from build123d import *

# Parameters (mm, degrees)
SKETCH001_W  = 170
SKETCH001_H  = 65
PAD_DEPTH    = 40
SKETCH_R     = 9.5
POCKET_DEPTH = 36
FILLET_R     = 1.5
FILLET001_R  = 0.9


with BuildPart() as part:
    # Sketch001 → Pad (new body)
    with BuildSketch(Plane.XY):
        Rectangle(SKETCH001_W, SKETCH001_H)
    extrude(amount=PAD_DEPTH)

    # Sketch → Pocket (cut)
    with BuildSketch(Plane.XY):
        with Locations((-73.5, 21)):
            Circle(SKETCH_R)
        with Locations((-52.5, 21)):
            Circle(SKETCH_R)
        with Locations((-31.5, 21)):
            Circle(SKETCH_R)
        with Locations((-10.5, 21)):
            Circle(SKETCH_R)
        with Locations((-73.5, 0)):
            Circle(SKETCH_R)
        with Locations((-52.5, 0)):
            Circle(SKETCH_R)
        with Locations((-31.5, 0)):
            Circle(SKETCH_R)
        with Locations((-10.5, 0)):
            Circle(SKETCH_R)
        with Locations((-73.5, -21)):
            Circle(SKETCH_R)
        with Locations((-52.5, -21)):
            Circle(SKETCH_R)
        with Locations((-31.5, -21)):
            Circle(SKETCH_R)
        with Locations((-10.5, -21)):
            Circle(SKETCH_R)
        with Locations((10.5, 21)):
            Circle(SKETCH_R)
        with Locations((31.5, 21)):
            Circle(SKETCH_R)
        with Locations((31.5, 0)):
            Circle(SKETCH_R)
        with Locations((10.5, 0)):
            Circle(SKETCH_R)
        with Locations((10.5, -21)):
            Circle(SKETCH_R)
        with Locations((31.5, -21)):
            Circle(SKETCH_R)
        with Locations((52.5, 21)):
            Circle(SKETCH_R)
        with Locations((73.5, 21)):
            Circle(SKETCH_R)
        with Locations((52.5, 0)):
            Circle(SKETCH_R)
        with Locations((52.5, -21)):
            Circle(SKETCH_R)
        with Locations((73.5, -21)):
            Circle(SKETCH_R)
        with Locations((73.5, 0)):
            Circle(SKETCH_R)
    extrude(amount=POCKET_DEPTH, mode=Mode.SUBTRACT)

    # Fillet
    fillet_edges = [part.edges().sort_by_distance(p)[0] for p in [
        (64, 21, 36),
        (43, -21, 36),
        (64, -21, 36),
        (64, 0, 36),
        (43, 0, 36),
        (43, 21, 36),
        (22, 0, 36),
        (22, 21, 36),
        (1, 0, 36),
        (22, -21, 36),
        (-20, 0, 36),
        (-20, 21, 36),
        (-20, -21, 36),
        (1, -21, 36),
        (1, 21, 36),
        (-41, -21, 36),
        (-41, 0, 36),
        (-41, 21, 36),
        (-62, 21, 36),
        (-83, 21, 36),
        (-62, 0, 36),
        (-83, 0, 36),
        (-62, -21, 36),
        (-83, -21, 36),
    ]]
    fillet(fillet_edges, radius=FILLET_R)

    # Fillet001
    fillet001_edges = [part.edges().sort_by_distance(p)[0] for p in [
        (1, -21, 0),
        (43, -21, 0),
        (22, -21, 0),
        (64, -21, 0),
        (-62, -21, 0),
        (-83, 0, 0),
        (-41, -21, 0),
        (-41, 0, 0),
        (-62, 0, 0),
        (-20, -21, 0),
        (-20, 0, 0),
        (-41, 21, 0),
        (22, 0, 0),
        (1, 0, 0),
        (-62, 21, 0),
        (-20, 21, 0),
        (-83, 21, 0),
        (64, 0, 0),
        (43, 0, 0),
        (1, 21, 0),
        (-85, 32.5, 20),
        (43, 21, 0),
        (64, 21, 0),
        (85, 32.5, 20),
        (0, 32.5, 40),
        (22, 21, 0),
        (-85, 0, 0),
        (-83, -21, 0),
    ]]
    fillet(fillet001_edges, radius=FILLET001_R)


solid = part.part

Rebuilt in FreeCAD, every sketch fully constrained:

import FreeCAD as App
import Part
import Sketcher

V = App.Vector


def edges_at(feature, points):
    """Names of the edges that pass closest to the given points."""
    edges = feature.Shape.Edges
    near = lambda p: min(range(len(edges)), key=lambda i: edges[i].distToShape(Part.Vertex(*p))[0])
    return sorted({f"Edge{near(p) + 1}" for p in points})

doc = App.newDocument("Part")
body = doc.addObject("PartDesign::Body", "Body")

# Sketch on XY plane
sketch1 = body.newObject("Sketcher::SketchObject", "Sketch")
sketch1.AttachmentSupport = (doc.getObject("XY_Plane"), [""])
sketch1.MapMode = "FlatFace"
sketch1.addGeometry(Part.LineSegment(V(-85, 32, 0), V(-85, -32, 0)), False)
sketch1.addGeometry(Part.LineSegment(V(-85, -32, 0), V(85, -32, 0)), False)
sketch1.addGeometry(Part.LineSegment(V(85, -32, 0), V(85, 32, 0)), False)
sketch1.addGeometry(Part.LineSegment(V(85, 32, 0), V(-85, 32, 0)), False)
sketch1.addConstraint(Sketcher.Constraint("Coincident", 0, 2, 1, 1))
sketch1.addConstraint(Sketcher.Constraint("Coincident", 1, 2, 2, 1))
sketch1.addConstraint(Sketcher.Constraint("Coincident", 2, 2, 3, 1))
sketch1.addConstraint(Sketcher.Constraint("Coincident", 3, 2, 0, 1))
sketch1.addConstraint(Sketcher.Constraint("Vertical", 0))
sketch1.addConstraint(Sketcher.Constraint("Horizontal", 1))
sketch1.addConstraint(Sketcher.Constraint("Vertical", 2))
sketch1.addConstraint(Sketcher.Constraint("Horizontal", 3))
sketch1.addConstraint(Sketcher.Constraint("Symmetric", 0, 2, 2, 2, -1, 1))
sketch1.addConstraint(Sketcher.Constraint("DistanceX", 1, 1, 1, 2, 170.0))
sketch1.addConstraint(Sketcher.Constraint("DistanceY", 0, 2, 0, 1, 65.0))
pad1 = body.newObject("PartDesign::Pad", "Pad")
pad1.Profile = sketch1
pad1.Length = 40

# Sketch on XY plane
sketch2 = body.newObject("Sketcher::SketchObject", "Sketch001")
sketch2.AttachmentSupport = (doc.getObject("XY_Plane"), [""])
sketch2.MapMode = "FlatFace"
sketch2.addGeometry(Part.Circle(V(-74, 21, 0), V(0, 0, 1), 10), False)
sketch2.addGeometry(Part.Circle(V(-52, 21, 0), V(0, 0, 1), 10), False)
sketch2.addGeometry(Part.Circle(V(-32, 21, 0), V(0, 0, 1), 10), False)
sketch2.addGeometry(Part.Circle(V(-10, 21, 0), V(0, 0, 1), 10), False)
sketch2.addGeometry(Part.Circle(V(-74, 0, 0), V(0, 0, 1), 10), False)
sketch2.addGeometry(Part.Circle(V(-52, 0, 0), V(0, 0, 1), 10), False)
sketch2.addGeometry(Part.Circle(V(-32, 0, 0), V(0, 0, 1), 10), False)
sketch2.addGeometry(Part.Circle(V(-10, 0, 0), V(0, 0, 1), 10), False)
sketch2.addGeometry(Part.Circle(V(-74, -21, 0), V(0, 0, 1), 10), False)
sketch2.addGeometry(Part.Circle(V(-52, -21, 0), V(0, 0, 1), 10), False)
sketch2.addGeometry(Part.Circle(V(-32, -21, 0), V(0, 0, 1), 10), False)
sketch2.addGeometry(Part.Circle(V(-10, -21, 0), V(0, 0, 1), 10), False)
sketch2.addGeometry(Part.Circle(V(10, 21, 0), V(0, 0, 1), 10), False)
sketch2.addGeometry(Part.Circle(V(32, 21, 0), V(0, 0, 1), 10), False)
sketch2.addGeometry(Part.Circle(V(32, 0, 0), V(0, 0, 1), 10), False)
sketch2.addGeometry(Part.Circle(V(10, 0, 0), V(0, 0, 1), 10), False)
sketch2.addGeometry(Part.Circle(V(10, -21, 0), V(0, 0, 1), 10), False)
sketch2.addGeometry(Part.Circle(V(32, -21, 0), V(0, 0, 1), 10), False)
sketch2.addGeometry(Part.Circle(V(52, 21, 0), V(0, 0, 1), 10), False)
sketch2.addGeometry(Part.Circle(V(74, 21, 0), V(0, 0, 1), 10), False)
sketch2.addGeometry(Part.Circle(V(52, 0, 0), V(0, 0, 1), 10), False)
sketch2.addGeometry(Part.Circle(V(52, -21, 0), V(0, 0, 1), 10), False)
sketch2.addGeometry(Part.Circle(V(74, -21, 0), V(0, 0, 1), 10), False)
sketch2.addGeometry(Part.Circle(V(74, 0, 0), V(0, 0, 1), 10), False)
sketch2.addConstraint(Sketcher.Constraint("Equal", 0, 1))
sketch2.addConstraint(Sketcher.Constraint("Equal", 1, 2))
sketch2.addConstraint(Sketcher.Constraint("Equal", 2, 3))
sketch2.addConstraint(Sketcher.Constraint("Equal", 3, 4))
sketch2.addConstraint(Sketcher.Constraint("Equal", 4, 5))
sketch2.addConstraint(Sketcher.Constraint("Equal", 5, 6))
sketch2.addConstraint(Sketcher.Constraint("Equal", 6, 7))
sketch2.addConstraint(Sketcher.Constraint("Equal", 7, 8))
sketch2.addConstraint(Sketcher.Constraint("Equal", 8, 9))
sketch2.addConstraint(Sketcher.Constraint("Equal", 9, 10))
sketch2.addConstraint(Sketcher.Constraint("Equal", 10, 11))
sketch2.addConstraint(Sketcher.Constraint("Equal", 11, 12))
sketch2.addConstraint(Sketcher.Constraint("Equal", 12, 13))
sketch2.addConstraint(Sketcher.Constraint("Equal", 13, 14))
sketch2.addConstraint(Sketcher.Constraint("Equal", 14, 15))
sketch2.addConstraint(Sketcher.Constraint("Equal", 15, 16))
sketch2.addConstraint(Sketcher.Constraint("Equal", 16, 17))
sketch2.addConstraint(Sketcher.Constraint("Equal", 17, 18))
sketch2.addConstraint(Sketcher.Constraint("Equal", 18, 19))
sketch2.addConstraint(Sketcher.Constraint("Equal", 19, 20))
sketch2.addConstraint(Sketcher.Constraint("Equal", 20, 21))
sketch2.addConstraint(Sketcher.Constraint("Equal", 21, 22))
sketch2.addConstraint(Sketcher.Constraint("Equal", 22, 23))
sketch2.addConstraint(Sketcher.Constraint("Symmetric", 11, 3, 12, 3, -1, 1))
sketch2.addConstraint(Sketcher.Constraint("Symmetric", 10, 3, 13, 3, -1, 1))
sketch2.addConstraint(Sketcher.Constraint("Symmetric", 6, 3, 14, 3, -1, 1))
sketch2.addConstraint(Sketcher.Constraint("Symmetric", 7, 3, 15, 3, -1, 1))
sketch2.addConstraint(Sketcher.Constraint("Symmetric", 3, 3, 16, 3, -1, 1))
sketch2.addConstraint(Sketcher.Constraint("Symmetric", 2, 3, 17, 3, -1, 1))
sketch2.addConstraint(Sketcher.Constraint("Symmetric", 9, 3, 18, 3, -1, 1))
sketch2.addConstraint(Sketcher.Constraint("Symmetric", 8, 3, 19, 3, -1, 1))
sketch2.addConstraint(Sketcher.Constraint("Symmetric", 5, 3, 20, 3, -1, 1))
sketch2.addConstraint(Sketcher.Constraint("Symmetric", 1, 3, 21, 3, -1, 1))
sketch2.addConstraint(Sketcher.Constraint("Symmetric", 0, 3, 22, 3, -1, 1))
sketch2.addConstraint(Sketcher.Constraint("Symmetric", 4, 3, 23, 3, -1, 1))
sketch2.addConstraint(Sketcher.Constraint("Symmetric", 3, 3, 12, 3, -2))
sketch2.addConstraint(Sketcher.Constraint("Symmetric", 2, 3, 13, 3, -2))
sketch2.addConstraint(Sketcher.Constraint("Symmetric", 1, 3, 18, 3, -2))
sketch2.addConstraint(Sketcher.Constraint("Symmetric", 0, 3, 19, 3, -2))
sketch2.addConstraint(Sketcher.Constraint("PointOnObject", 4, 3, -1))
sketch2.addConstraint(Sketcher.Constraint("PointOnObject", 5, 3, -1))
sketch2.addConstraint(Sketcher.Constraint("PointOnObject", 6, 3, -1))
sketch2.addConstraint(Sketcher.Constraint("PointOnObject", 7, 3, -1))
sketch2.addConstraint(Sketcher.Constraint("Horizontal", 0, 3, 1, 3))
sketch2.addConstraint(Sketcher.Constraint("Horizontal", 1, 3, 2, 3))
sketch2.addConstraint(Sketcher.Constraint("Horizontal", 2, 3, 3, 3))
sketch2.addConstraint(Sketcher.Constraint("Vertical", 0, 3, 4, 3))
sketch2.addConstraint(Sketcher.Constraint("Vertical", 1, 3, 5, 3))
sketch2.addConstraint(Sketcher.Constraint("Vertical", 2, 3, 6, 3))
sketch2.addConstraint(Sketcher.Constraint("Vertical", 3, 3, 7, 3))
sketch2.addConstraint(Sketcher.Constraint("Diameter", 0, 19.0))
sketch2.addConstraint(Sketcher.Constraint("DistanceY", -1, 1, 0, 3, 21.0))
sketch2.addConstraint(Sketcher.Constraint("DistanceX", 0, 3, 1, 3, 21.0))
sketch2.addConstraint(Sketcher.Constraint("DistanceX", 1, 3, 2, 3, 21.0))
sketch2.addConstraint(Sketcher.Constraint("DistanceX", 2, 3, 3, 3, 21.0))
sketch2.addConstraint(Sketcher.Constraint("DistanceX", 3, 3, 12, 3, 21.0))
pocket1 = body.newObject("PartDesign::Pocket", "Pocket")
pocket1.Profile = sketch2
pocket1.Length = 36
pocket1.Reversed = True
doc.recompute()

fillet = body.newObject("PartDesign::Fillet", "Fillet")
fillet.Base = (pocket1, edges_at(pocket1, [
    (64, 21, 36),
    (43, -21, 36),
    (64, -21, 36),
    (64, 0, 36),
    (43, 0, 36),
    (43, 21, 36),
    (22, 0, 36),
    (22, 21, 36),
    (1, 0, 36),
    (22, -21, 36),
    (-20, 0, 36),
    (-20, 21, 36),
    (-20, -21, 36),
    (1, -21, 36),
    (1, 21, 36),
    (-41, -21, 36),
    (-41, 0, 36),
    (-41, 21, 36),
    (-62, 21, 36),
    (-83, 21, 36),
    (-62, 0, 36),
    (-83, 0, 36),
    (-62, -21, 36),
    (-83, -21, 36),
]))
fillet.Radius = 1.5
doc.recompute()

fillet2 = body.newObject("PartDesign::Fillet", "Fillet001")
fillet2.Base = (fillet, edges_at(fillet, [
    (1, -21, 0),
    (43, -21, 0),
    (22, -21, 0),
    (64, -21, 0),
    (-62, -21, 0),
    (-83, 0, 0),
    (-41, -21, 0),
    (-41, 0, 0),
    (-62, 0, 0),
    (-20, -21, 0),
    (-20, 0, 0),
    (-41, 21, 0),
    (22, 0, 0),
    (1, 0, 0),
    (-62, 21, 0),
    (-20, 21, 0),
    (-83, 21, 0),
    (64, 0, 0),
    (43, 0, 0),
    (1, 21, 0),
    (-85, 32.5, 20),
    (43, 21, 0),
    (64, 21, 0),
    (85, 32.5, 20),
    (0, 32.5, 40),
    (22, 21, 0),
    (-85, 0, 0),
    (-83, -21, 0),
]))
fillet2.Radius = 0.9

doc.recompute()
